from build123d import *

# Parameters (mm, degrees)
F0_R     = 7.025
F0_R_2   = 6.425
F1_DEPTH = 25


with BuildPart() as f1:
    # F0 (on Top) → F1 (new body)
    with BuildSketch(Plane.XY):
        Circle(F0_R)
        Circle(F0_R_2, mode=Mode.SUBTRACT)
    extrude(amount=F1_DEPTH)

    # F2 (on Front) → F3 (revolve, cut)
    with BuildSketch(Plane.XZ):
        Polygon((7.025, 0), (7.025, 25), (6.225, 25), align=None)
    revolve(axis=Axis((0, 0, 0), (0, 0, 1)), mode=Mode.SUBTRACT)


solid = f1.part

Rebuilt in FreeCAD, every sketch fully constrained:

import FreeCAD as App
import Part
import Sketcher

doc = App.newDocument("Part")
body = doc.addObject("PartDesign::Body", "Body")

# Sketch on XY plane
sketch1 = body.newObject("Sketcher::SketchObject", "Sketch")
sketch1.AttachmentSupport = (doc.getObject("XY_Plane"), [""])
sketch1.MapMode = "FlatFace"
sketch1.addGeometry(Part.Circle(App.Vector(0, 0, 0), App.Vector(0, 0, 1), 7), False)
sketch1.addGeometry(Part.Circle(App.Vector(0, 0, 0), App.Vector(0, 0, 1), 6), False)
sketch1.addConstraint(Sketcher.Constraint("Coincident", 0, 3, -1, 1))
sketch1.addConstraint(Sketcher.Constraint("Coincident", 1, 3, -1, 1))
sketch1.addConstraint(Sketcher.Constraint("Diameter", 0, 14.05))
sketch1.addConstraint(Sketcher.Constraint("Diameter", 1, 12.85))
pad1 = body.newObject("PartDesign::Pad", "Pad")
pad1.Profile = sketch1
pad1.Length = 25

# Sketch on XZ plane
sketch2 = body.newObject("Sketcher::SketchObject", "Sketch001")
sketch2.AttachmentSupport = (doc.getObject("XZ_Plane"), [""])
sketch2.MapMode = "FlatFace"
sketch2.addGeometry(Part.LineSegment(App.Vector(7, 0, 0), App.Vector(7, 25, 0)), False)
sketch2.addGeometry(Part.LineSegment(App.Vector(7, 25, 0), App.Vector(6.2, 25, 0)), False)
sketch2.addGeometry(Part.LineSegment(App.Vector(6.2, 25, 0), App.Vector(7, 0, 0)), False)
sketch2.addConstraint(Sketcher.Constraint("Coincident", 0, 2, 1, 1))
sketch2.addConstraint(Sketcher.Constraint("Coincident", 1, 2, 2, 1))
sketch2.addConstraint(Sketcher.Constraint("Coincident", 2, 2, 0, 1))
sketch2.addConstraint(Sketcher.Constraint("Vertical", 0))
sketch2.addConstraint(Sketcher.Constraint("Horizontal", 1))
sketch2.addConstraint(Sketcher.Constraint("PointOnObject", 2, 2, -1))
sketch2.addConstraint(Sketcher.Constraint("DistanceY", 0, 1, 0, 2, 25.0))
sketch2.addConstraint(Sketcher.Constraint("DistanceX", 1, 2, 1, 1, 0.8))
sketch2.addConstraint(Sketcher.Constraint("DistanceX", -1, 1, 0, 2, 7.025))
groove = body.newObject("PartDesign::Groove", "Groove")
groove.Profile = sketch2
groove.ReferenceAxis = (sketch2, ["V_Axis"])
groove.Angle = 360

doc.recompute()
